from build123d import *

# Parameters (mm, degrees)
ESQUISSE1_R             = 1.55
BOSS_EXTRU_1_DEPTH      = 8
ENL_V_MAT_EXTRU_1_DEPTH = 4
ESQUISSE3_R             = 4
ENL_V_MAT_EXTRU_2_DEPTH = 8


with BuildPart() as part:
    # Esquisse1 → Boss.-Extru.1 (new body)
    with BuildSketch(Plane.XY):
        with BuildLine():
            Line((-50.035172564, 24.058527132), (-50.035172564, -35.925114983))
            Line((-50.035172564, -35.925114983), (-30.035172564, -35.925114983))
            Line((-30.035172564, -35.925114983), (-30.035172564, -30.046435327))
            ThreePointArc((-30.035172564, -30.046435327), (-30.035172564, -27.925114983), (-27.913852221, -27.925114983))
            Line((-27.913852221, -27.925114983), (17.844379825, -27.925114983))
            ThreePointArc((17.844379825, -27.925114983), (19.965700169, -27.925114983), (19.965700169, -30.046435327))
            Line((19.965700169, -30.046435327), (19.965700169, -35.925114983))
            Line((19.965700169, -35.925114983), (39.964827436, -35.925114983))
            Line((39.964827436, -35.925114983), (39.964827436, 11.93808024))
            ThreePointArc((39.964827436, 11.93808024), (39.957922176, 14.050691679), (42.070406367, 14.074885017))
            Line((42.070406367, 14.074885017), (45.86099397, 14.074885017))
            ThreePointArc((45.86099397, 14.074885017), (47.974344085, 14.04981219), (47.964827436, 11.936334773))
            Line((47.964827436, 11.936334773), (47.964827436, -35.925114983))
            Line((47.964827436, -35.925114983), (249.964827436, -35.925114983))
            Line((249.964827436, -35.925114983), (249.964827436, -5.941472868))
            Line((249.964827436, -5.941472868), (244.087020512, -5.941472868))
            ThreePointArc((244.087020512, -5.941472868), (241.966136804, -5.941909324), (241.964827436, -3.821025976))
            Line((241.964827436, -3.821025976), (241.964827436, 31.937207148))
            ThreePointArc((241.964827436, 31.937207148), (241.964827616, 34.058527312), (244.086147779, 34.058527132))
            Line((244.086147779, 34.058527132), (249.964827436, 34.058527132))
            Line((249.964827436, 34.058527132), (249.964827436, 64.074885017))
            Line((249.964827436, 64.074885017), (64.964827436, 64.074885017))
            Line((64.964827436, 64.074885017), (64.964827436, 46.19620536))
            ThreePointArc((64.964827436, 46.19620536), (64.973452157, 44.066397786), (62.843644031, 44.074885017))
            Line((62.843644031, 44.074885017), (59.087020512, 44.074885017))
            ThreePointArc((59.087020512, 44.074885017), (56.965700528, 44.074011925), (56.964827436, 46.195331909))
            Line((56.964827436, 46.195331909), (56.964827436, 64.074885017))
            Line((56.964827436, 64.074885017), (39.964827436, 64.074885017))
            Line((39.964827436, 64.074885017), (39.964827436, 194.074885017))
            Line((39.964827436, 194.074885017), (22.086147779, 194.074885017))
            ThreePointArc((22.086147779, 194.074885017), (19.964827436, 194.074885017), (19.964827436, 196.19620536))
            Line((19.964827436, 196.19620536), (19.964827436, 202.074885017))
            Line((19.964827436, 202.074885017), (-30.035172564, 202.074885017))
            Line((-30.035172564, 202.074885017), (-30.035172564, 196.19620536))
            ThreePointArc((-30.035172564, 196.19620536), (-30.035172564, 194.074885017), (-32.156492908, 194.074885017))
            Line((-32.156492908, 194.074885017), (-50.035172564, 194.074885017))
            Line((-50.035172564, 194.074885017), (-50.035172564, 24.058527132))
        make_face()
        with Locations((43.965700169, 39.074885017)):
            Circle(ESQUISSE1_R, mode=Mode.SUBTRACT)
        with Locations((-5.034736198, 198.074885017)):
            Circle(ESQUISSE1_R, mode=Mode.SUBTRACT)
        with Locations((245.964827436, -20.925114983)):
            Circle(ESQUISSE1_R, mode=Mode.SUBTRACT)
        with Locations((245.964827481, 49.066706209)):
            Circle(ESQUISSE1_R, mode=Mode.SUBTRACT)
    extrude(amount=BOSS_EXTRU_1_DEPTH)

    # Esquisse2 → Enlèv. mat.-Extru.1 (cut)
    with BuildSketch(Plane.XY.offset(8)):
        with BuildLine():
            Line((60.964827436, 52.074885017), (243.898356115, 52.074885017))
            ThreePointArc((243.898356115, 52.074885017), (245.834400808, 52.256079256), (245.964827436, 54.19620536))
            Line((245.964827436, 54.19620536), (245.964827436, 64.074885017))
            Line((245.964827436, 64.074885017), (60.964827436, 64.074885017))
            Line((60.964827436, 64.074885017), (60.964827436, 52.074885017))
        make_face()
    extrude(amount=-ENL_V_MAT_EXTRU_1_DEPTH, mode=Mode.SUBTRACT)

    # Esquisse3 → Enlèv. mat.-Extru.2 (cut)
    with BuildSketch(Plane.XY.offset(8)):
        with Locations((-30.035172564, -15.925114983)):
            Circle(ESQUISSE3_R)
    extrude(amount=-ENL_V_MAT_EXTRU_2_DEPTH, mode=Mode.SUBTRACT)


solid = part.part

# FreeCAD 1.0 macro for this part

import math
import FreeCAD as App
import Part
import Sketcher
from FreeCAD import Vector

doc = App.newDocument("Part")
params = doc.addObject("Spreadsheet::Sheet", "Params")
for row, (alias, value) in enumerate([
    ("sketch1_diameter", "3.1 mm"),
    ("sketch1_radius", "1.5 mm"),
    ("sketch1_width", "20 mm"),
    ("sketch1_width2", "202 mm"),
    ("sketch1_width3", "185 mm"),
    ("pad1_length", "8 mm"),
    ("sketch2_radius", "1.5 mm"),
    ("sketch2_width", "185 mm"),
    ("sketch2_height", "12 mm"),
    ("pocket1_length", "4 mm"),
    ("sketch3_diameter", "8 mm"),
    ("pocket2_length", "8 mm"),
], start=1):
    params.set(f"A{row}", alias)
    params.set(f"B{row}", "=" + value)
    params.setAlias(f"B{row}", alias)

body = doc.addObject("PartDesign::Body", "Body")

sketch1 = body.newObject("Sketcher::SketchObject", "Sketch")
sketch1.AttachmentSupport = (doc.getObject("XY_Plane"), [""])
sketch1.MapMode = "FlatFace"
sketch1.addGeometry([
    Part.LineSegment(Vector(-50, -35.9, 0), Vector(-30, -35.9, 0)),
    Part.LineSegment(Vector(-30, -35.9, 0), Vector(-30, -30, 0)),
    Part.ArcOfCircle(Part.Circle(Vector(-29, -29, 0), Vector(0, 0, 1), 1.5), math.radians(45), math.radians(225)),
    Part.LineSegment(Vector(-27.9, -27.9, 0), Vector(17.8, -27.9, 0)),
    Part.ArcOfCircle(Part.Circle(Vector(18.9, -29, 0), Vector(0, 0, 1), 1.5), math.radians(-45), math.radians(135)),
    Part.LineSegment(Vector(20, -30, 0), Vector(20, -35.9, 0)),
    Part.LineSegment(Vector(20, -35.9, 0), Vector(40, -35.9, 0)),
    Part.LineSegment(Vector(40, -35.9, 0), Vector(40, 11.9, 0)),
    Part.ArcOfCircle(Part.Circle(Vector(41, 13, 0), Vector(0, 0, 1), 1.5), math.radians(46), math.radians(225)),
    Part.LineSegment(Vector(42.1, 14.1, 0), Vector(45.9, 14.1, 0)),
    Part.ArcOfCircle(Part.Circle(Vector(46.9, 13, 0), Vector(0, 0, 1), 1.5), math.radians(-45), math.radians(134)),
    Part.LineSegment(Vector(48, 11.9, 0), Vector(48, -35.9, 0)),
    Part.LineSegment(Vector(48, -35.9, 0), Vector(250, -35.9, 0)),
    Part.LineSegment(Vector(250, -35.9, 0), Vector(250, -5.9, 0)),
    Part.LineSegment(Vector(250, -5.9, 0), Vector(244.1, -5.9, 0)),
    Part.ArcOfCircle(Part.Circle(Vector(243, -4.9, 0), Vector(0, 0, 1), 1.5), math.radians(135), math.radians(315)),
    Part.LineSegment(Vector(242, -3.8, 0), Vector(242, 31.9, 0)),
    Part.ArcOfCircle(Part.Circle(Vector(243, 33, 0), Vector(0, 0, 1), 1.5), math.radians(45), math.radians(225)),
    Part.LineSegment(Vector(244.1, 34.1, 0), Vector(250, 34.1, 0)),
    Part.LineSegment(Vector(250, 34.1, 0), Vector(250, 64.1, 0)),
    Part.LineSegment(Vector(250, 64.1, 0), Vector(65, 64.1, 0)),
    Part.LineSegment(Vector(65, 64.1, 0), Vector(65, 46.2, 0)),
    Part.ArcOfCircle(Part.Circle(Vector(63.9, 45.1, 0), Vector(0, 0, 1), 1.5), math.radians(-135), math.radians(45)),
    Part.LineSegment(Vector(62.8, 44.1, 0), Vector(59.1, 44.1, 0)),
    Part.ArcOfCircle(Part.Circle(Vector(58, 45.1, 0), Vector(0, 0, 1), 1.5), math.radians(135), math.radians(315)),
    Part.LineSegment(Vector(57, 46.2, 0), Vector(57, 64.1, 0)),
    Part.LineSegment(Vector(57, 64.1, 0), Vector(40, 64.1, 0)),
    Part.LineSegment(Vector(40, 64.1, 0), Vector(40, 194.1, 0)),
    Part.LineSegment(Vector(40, 194.1, 0), Vector(22.1, 194.1, 0)),
    Part.ArcOfCircle(Part.Circle(Vector(21, 195.1, 0), Vector(0, 0, 1), 1.5), math.radians(135), math.radians(315)),
    Part.LineSegment(Vector(20, 196.2, 0), Vector(20, 202.1, 0)),
    Part.LineSegment(Vector(20, 202.1, 0), Vector(-30, 202.1, 0)),
    Part.LineSegment(Vector(-30, 202.1, 0), Vector(-30, 196.2, 0)),
    Part.ArcOfCircle(Part.Circle(Vector(-31.1, 195.1, 0), Vector(0, 0, 1), 1.5), math.radians(-135), math.radians(45)),
    Part.LineSegment(Vector(-32.2, 194.1, 0), Vector(-50, 194.1, 0)),
    Part.LineSegment(Vector(-50, 194.1, 0), Vector(-50, -35.9, 0)),
    Part.Circle(Vector(44, 39.1, 0), Vector(0, 0, 1), 1.6),
    Part.Circle(Vector(246, -20.9, 0), Vector(0, 0, 1), 1.6),
    Part.Circle(Vector(246, 49.1, 0), Vector(0, 0, 1), 1.6),
    Part.Circle(Vector(-5, 198.1, 0), Vector(0, 0, 1), 1.6),
], False)
sketch1.addConstraint([
    Sketcher.Constraint("Coincident", 0, 2, 1, 1),
    Sketcher.Constraint("Coincident", 1, 2, 2, 2),
    Sketcher.Constraint("Coincident", 2, 1, 3, 1),
    Sketcher.Constraint("Coincident", 3, 2, 4, 2),
    Sketcher.Constraint("Coincident", 4, 1, 5, 1),
    Sketcher.Constraint("Coincident", 5, 2, 6, 1),
    Sketcher.Constraint("Coincident", 6, 2, 7, 1),
    Sketcher.Constraint("Coincident", 7, 2, 8, 2),
    Sketcher.Constraint("Coincident", 8, 1, 9, 1),
    Sketcher.Constraint("Coincident", 9, 2, 10, 2),
    Sketcher.Constraint("Coincident", 10, 1, 11, 1),
    Sketcher.Constraint("Coincident", 11, 2, 12, 1),
    Sketcher.Constraint("Coincident", 12, 2, 13, 1),
    Sketcher.Constraint("Coincident", 13, 2, 14, 1),
    Sketcher.Constraint("Coincident", 14, 2, 15, 2),
    Sketcher.Constraint("Coincident", 15, 1, 16, 1),
    Sketcher.Constraint("Coincident", 16, 2, 17, 2),
    Sketcher.Constraint("Coincident", 17, 1, 18, 1),
    Sketcher.Constraint("Coincident", 18, 2, 19, 1),
    Sketcher.Constraint("Coincident", 19, 2, 20, 1),
    Sketcher.Constraint("Coincident", 20, 2, 21, 1),
    Sketcher.Constraint("Coincident", 21, 2, 22, 2),
    Sketcher.Constraint("Coincident", 22, 1, 23, 1),
    Sketcher.Constraint("Coincident", 23, 2, 24, 2),
    Sketcher.Constraint("Coincident", 24, 1, 25, 1),
    Sketcher.Constraint("Coincident", 25, 2, 26, 1),
    Sketcher.Constraint("Coincident", 26, 2, 27, 1),
    Sketcher.Constraint("Coincident", 27, 2, 28, 1),
    Sketcher.Constraint("Coincident", 28, 2, 29, 2),
    Sketcher.Constraint("Coincident", 29, 1, 30, 1),
    Sketcher.Constraint("Coincident", 30, 2, 31, 1),
    Sketcher.Constraint("Coincident", 31, 2, 32, 1),
    Sketcher.Constraint("Coincident", 32, 2, 33, 2),
    Sketcher.Constraint("Coincident", 33, 1, 34, 1),
    Sketcher.Constraint("Coincident", 34, 2, 35, 1),
    Sketcher.Constraint("Coincident", 35, 2, 0, 1),
    Sketcher.Constraint("Horizontal", 0),
    Sketcher.Constraint("Vertical", 1),
    Sketcher.Constraint("Horizontal", 3),
    Sketcher.Constraint("Vertical", 5),
    Sketcher.Constraint("Horizontal", 6),
    Sketcher.Constraint("Vertical", 7),
    Sketcher.Constraint("Horizontal", 9),
    Sketcher.Constraint("Vertical", 11),
    Sketcher.Constraint("Horizontal", 12),
    Sketcher.Constraint("Vertical", 13),
    Sketcher.Constraint("Horizontal", 14),
    Sketcher.Constraint("Vertical", 16),
    Sketcher.Constraint("Horizontal", 18),
    Sketcher.Constraint("Vertical", 19),
    Sketcher.Constraint("Horizontal", 20),
    Sketcher.Constraint("Vertical", 21),
    Sketcher.Constraint("Horizontal", 23),
    Sketcher.Constraint("Vertical", 25),
    Sketcher.Constraint("Horizontal", 26),
    Sketcher.Constraint("Vertical", 27),
    Sketcher.Constraint("Horizontal", 28),
    Sketcher.Constraint("Vertical", 30),
    Sketcher.Constraint("Horizontal", 31),
    Sketcher.Constraint("Vertical", 32),
    Sketcher.Constraint("Horizontal", 34),
    Sketcher.Constraint("Vertical", 35),
    Sketcher.Constraint("Equal", 2, 4),
    Sketcher.Constraint("Equal", 4, 8),
    Sketcher.Constraint("Equal", 8, 10),
    Sketcher.Constraint("Equal", 10, 15),
    Sketcher.Constraint("Equal", 15, 17),
    Sketcher.Constraint("Equal", 17, 22),
    Sketcher.Constraint("Equal", 22, 24),
    Sketcher.Constraint("Equal", 24, 29),
    Sketcher.Constraint("Equal", 29, 33),
    Sketcher.Constraint("Equal", 36, 37),
    Sketcher.Constraint("Equal", 37, 38),
    Sketcher.Constraint("Equal", 38, 39),
    Sketcher.Constraint("Horizontal", 2, 3, 4, 3),
    Sketcher.Constraint("Horizontal", 8, 3, 10, 3),
    Sketcher.Constraint("Horizontal", 29, 3, 33, 3),
    Sketcher.Constraint("Horizontal", 1, 2, 4, 1),
    Sketcher.Constraint("Horizontal", 0, 2, 5, 2),
    Sketcher.Constraint("Horizontal", 6, 2, 11, 2),
    Sketcher.Constraint("Horizontal", 20, 2, 25, 2),
    Sketcher.Constraint("Horizontal", 29, 1, 32, 2),
    Sketcher.Constraint("Horizontal", 28, 2, 33, 1),
    Sketcher.Constraint("Vertical", 37, 3, 38, 3),
    Sketcher.Constraint("Vertical", 13, 2, 18, 2),
    Sketcher.Constraint("Vertical", 7, 2, 26, 2),
    Sketcher.Constraint("Vertical", 1, 2, 31, 2),
    Sketcher.Constraint("Equal", 28, 34),
    Sketcher.Constraint("Equal", 18, 1),
    Sketcher.Constraint("Equal", 34, 21),
    Sketcher.Constraint("Equal", 5, 30),
    Sketcher.Constraint("Diameter", 36, 3.1),
    Sketcher.Constraint("Radius", 2, 1.5),
    Sketcher.Constraint("DistanceX", 0, 1, 0, 2, 20.0),
    Sketcher.Constraint("DistanceX", 12, 1, 12, 2, 202.0),
    Sketcher.Constraint("DistanceX", 20, 2, 20, 1, 185.0),
    Sketcher.Constraint("DistanceX", 26, 2, 26, 1, 17.0),
    Sketcher.Constraint("DistanceX", 31, 2, 31, 1, 50.0),
    Sketcher.Constraint("DistanceY", 27, 1, 27, 2, 130.0),
    Sketcher.Constraint("DistanceY", 35, 2, 35, 1, 230.0),
    Sketcher.Constraint("DistanceX", 4, 3, 10, 3, 28.0),
    Sketcher.Constraint("DistanceX", 8, 3, 15, 3, 202.0),
    Sketcher.Constraint("DistanceY", 10, 3, 17, 3, 20.0),
    Sketcher.Constraint("DistanceX", 2, 3, 17, 3, 272.0),
    Sketcher.Constraint("DistanceY", 36, 3, 39, 3, 159.0),
    Sketcher.Constraint("DistanceY", 0, 2, 36, 3, 75.0),
    Sketcher.Constraint("DistanceY", 0, 2, 2, 1, 8.0),
    Sketcher.Constraint("DistanceY", 8, 1, 36, 3, 25.0),
    Sketcher.Constraint("DistanceX", 7, 2, 10, 1, 8.0),
    Sketcher.Constraint("DistanceX", 37, 3, 12, 2, 4.0),
    Sketcher.Constraint("DistanceY", 12, 2, 37, 3, 15.0),
    Sketcher.Constraint("DistanceX", 15, 1, 13, 2, 8.0),
    Sketcher.Constraint("DistanceY", 36, 3, 22, 1, 5.0),
    Sketcher.Constraint("DistanceY", 28, 2, 30, 2, 8.0),
    Sketcher.Constraint("DistanceX", 18, 1, 18, 2, 5.87868),
    Sketcher.Constraint("DistanceY", 11, 2, 11, 1, 47.86145),
    Sketcher.Constraint("DistanceX", -1, 1, 36, 3, 43.9657),
    Sketcher.Constraint("DistanceX", -1, 1, 4, 1, 19.9657),
    Sketcher.Constraint("DistanceY", 4, 3, 22, 3, 74.112799),
    Sketcher.Constraint("DistanceY", 16, 2, 38, 3, 17.129499),
    Sketcher.Constraint("DistanceX", 3, 1, 3, 2, 45.758232),
    Sketcher.Constraint("DistanceX", 9, 1, 9, 2, 3.790588),
    Sketcher.Constraint("DistanceX", 14, 2, 14, 1, 5.877807),
    Sketcher.Constraint("DistanceX", 23, 2, 23, 1, 3.756624),
    Sketcher.Constraint("DistanceY", 7, 1, 7, 2, 47.863195),
    Sketcher.Constraint("DistanceY", 13, 1, 13, 2, 29.983642),
    Sketcher.Constraint("DistanceY", -1, 1, 24, 3, 45.135108),
    Sketcher.Constraint("DistanceY", -1, 1, 7, 2, 11.93808),
    Sketcher.Constraint("DistanceX", 29, 3, 22, 3, 42.88727),
    Sketcher.Constraint("DistanceX", 39, 3, 24, 3, 63.06066),
])
sketch1.setExpression("Constraints[91]", "Params.sketch1_diameter")
sketch1.setExpression("Constraints[92]", "Params.sketch1_radius")
sketch1.setExpression("Constraints[93]", "Params.sketch1_width")
sketch1.setExpression("Constraints[94]", "Params.sketch1_width2")
sketch1.setExpression("Constraints[95]", "Params.sketch1_width3")
pad1 = body.newObject("PartDesign::Pad", "Pad")
pad1.Profile = sketch1
pad1.setExpression("Length", "Params.pad1_length")

sketch2 = body.newObject("Sketcher::SketchObject", "Sketch001")
sketch2.AttachmentSupport = (doc.getObject("XY_Plane"), [""])
sketch2.MapMode = "FlatFace"
sketch2.AttachmentOffset = App.Placement(Vector(0, 0, 8), App.Rotation())
sketch2.addGeometry([
    Part.LineSegment(Vector(61, 52.1, 0), Vector(243.9, 52.1, 0)),
    Part.ArcOfCircle(Part.Circle(Vector(244.8, 53.3, 0), Vector(0, 0, 1), 1.5), math.radians(-125), math.radians(37)),
    Part.LineSegment(Vector(246, 54.2, 0), Vector(246, 64.1, 0)),
    Part.LineSegment(Vector(246, 64.1, 0), Vector(61, 64.1, 0)),
    Part.LineSegment(Vector(61, 64.1, 0), Vector(61, 52.1, 0)),
], False)
sketch2.addConstraint([
    Sketcher.Constraint("Coincident", 0, 2, 1, 1),
    Sketcher.Constraint("Coincident", 1, 2, 2, 1),
    Sketcher.Constraint("Coincident", 2, 2, 3, 1),
    Sketcher.Constraint("Coincident", 3, 2, 4, 1),
    Sketcher.Constraint("Coincident", 4, 2, 0, 1),
    Sketcher.Constraint("Horizontal", 0),
    Sketcher.Constraint("Vertical", 2),
    Sketcher.Constraint("Horizontal", 3),
    Sketcher.Constraint("Vertical", 4),
    Sketcher.Constraint("Radius", 1, 1.5),
    Sketcher.Constraint("DistanceX", 3, 2, 3, 1, 185.0),
    Sketcher.Constraint("DistanceY", 4, 2, 4, 1, 12.0),
    Sketcher.Constraint("DistanceX", 0, 1, 0, 2, 182.933529),
    Sketcher.Constraint("DistanceY", 2, 1, 2, 2, 9.87868),
    Sketcher.Constraint("DistanceX", -1, 1, 1, 3, 244.759941),
    Sketcher.Constraint("DistanceY", -1, 1, 1, 3, 53.302758),
])
sketch2.setExpression("Constraints[9]", "Params.sketch2_radius")
sketch2.setExpression("Constraints[10]", "Params.sketch2_width")
sketch2.setExpression("Constraints[11]", "Params.sketch2_height")
pocket1 = body.newObject("PartDesign::Pocket", "Pocket")
pocket1.Profile = sketch2
pocket1.setExpression("Length", "Params.pocket1_length")

sketch3 = body.newObject("Sketcher::SketchObject", "Sketch002")
sketch3.AttachmentSupport = (doc.getObject("XY_Plane"), [""])
sketch3.MapMode = "FlatFace"
sketch3.AttachmentOffset = App.Placement(Vector(0, 0, 8), App.Rotation())
sketch3.addGeometry(Part.Circle(Vector(-30, -15.9, 0), Vector(0, 0, 1), 4), False)
sketch3.addConstraint([
    Sketcher.Constraint("Diameter", 0, 8.0),
    Sketcher.Constraint("DistanceX", 0, 3, -1, 1, 30.035173),
    Sketcher.Constraint("DistanceY", 0, 3, -1, 1, 15.925115),
])
sketch3.setExpression("Constraints[0]", "Params.sketch3_diameter")
pocket2 = body.newObject("PartDesign::Pocket", "Pocket001")
pocket2.Profile = sketch3
pocket2.setExpression("Length", "Params.pocket2_length")

doc.recompute()
